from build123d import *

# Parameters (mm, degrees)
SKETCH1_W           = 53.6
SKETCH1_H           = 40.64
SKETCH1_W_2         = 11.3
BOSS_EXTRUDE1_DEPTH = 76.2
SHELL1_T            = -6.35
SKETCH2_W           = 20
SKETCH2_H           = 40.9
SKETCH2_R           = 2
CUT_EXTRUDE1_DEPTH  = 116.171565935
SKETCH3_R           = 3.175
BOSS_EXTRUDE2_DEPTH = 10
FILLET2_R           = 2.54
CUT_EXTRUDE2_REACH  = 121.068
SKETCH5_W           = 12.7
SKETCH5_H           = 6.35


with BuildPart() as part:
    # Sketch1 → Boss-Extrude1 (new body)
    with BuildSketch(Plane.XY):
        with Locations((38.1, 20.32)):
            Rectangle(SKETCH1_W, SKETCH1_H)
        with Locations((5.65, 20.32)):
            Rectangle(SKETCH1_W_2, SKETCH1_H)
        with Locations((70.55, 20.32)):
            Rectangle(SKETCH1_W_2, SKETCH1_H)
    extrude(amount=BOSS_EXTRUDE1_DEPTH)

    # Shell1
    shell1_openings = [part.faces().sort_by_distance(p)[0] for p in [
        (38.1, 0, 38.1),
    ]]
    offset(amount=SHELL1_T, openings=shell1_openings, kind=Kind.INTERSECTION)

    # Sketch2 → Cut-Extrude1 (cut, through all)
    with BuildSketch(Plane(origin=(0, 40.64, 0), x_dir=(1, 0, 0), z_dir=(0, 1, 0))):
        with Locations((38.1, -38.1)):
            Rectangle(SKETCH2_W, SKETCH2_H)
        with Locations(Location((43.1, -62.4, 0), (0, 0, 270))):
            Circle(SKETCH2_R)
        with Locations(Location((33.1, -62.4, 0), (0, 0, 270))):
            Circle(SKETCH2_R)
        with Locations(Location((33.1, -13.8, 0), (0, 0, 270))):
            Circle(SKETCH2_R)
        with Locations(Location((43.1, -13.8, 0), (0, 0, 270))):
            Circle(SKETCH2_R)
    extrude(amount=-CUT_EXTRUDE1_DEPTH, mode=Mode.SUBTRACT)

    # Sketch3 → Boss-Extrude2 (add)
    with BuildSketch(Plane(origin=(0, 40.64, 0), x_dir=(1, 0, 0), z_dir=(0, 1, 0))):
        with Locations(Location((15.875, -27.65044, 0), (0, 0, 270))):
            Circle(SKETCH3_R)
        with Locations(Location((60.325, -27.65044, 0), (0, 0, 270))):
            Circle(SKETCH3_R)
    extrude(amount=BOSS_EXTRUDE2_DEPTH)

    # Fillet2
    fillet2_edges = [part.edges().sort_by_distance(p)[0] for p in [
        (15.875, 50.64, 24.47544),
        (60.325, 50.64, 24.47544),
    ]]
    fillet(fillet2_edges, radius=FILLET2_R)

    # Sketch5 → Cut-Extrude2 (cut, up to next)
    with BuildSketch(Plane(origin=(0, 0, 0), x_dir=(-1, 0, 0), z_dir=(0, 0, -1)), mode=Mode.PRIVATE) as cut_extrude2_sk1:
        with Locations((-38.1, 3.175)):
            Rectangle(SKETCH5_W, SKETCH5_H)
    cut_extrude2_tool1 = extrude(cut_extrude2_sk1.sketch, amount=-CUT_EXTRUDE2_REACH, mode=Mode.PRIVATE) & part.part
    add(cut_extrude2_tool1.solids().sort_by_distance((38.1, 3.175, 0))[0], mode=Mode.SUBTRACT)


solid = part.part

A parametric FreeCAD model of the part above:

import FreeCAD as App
import Part
import Sketcher

V = App.Vector
Q = App.Units.Quantity


def edges_at(feature, points):
    """Names of the edges that pass closest to the given points."""
    edges = feature.Shape.Edges
    near = lambda p: min(range(len(edges)), key=lambda i: edges[i].distToShape(Part.Vertex(*p))[0])
    return sorted({f"Edge{near(p) + 1}" for p in points})


def faces_at(feature, points):
    """Names of the faces that lie closest to the given points."""
    faces = feature.Shape.Faces
    near = lambda p: min(range(len(faces)), key=lambda i: faces[i].distToShape(Part.Vertex(*p))[0])
    return sorted({f"Face{near(p) + 1}" for p in points})

doc = App.newDocument("Part")
body = doc.addObject("PartDesign::Body", "Body")

# Sketch on XY plane
sketch1 = body.newObject("Sketcher::SketchObject", "Sketch")
sketch1.AttachmentSupport = (doc.getObject("XY_Plane"), [""])
sketch1.MapMode = "FlatFace"
sketch1.addGeometry(Part.LineSegment(V(0, 40.64, 0), V(0, 0, 0)), False)
sketch1.addGeometry(Part.LineSegment(V(0, 0, 0), V(76.2, 0, 0)), False)
sketch1.addGeometry(Part.LineSegment(V(76.2, 0, 0), V(76.2, 40.64, 0)), False)
sketch1.addGeometry(Part.LineSegment(V(76.2, 40.64, 0), V(0, 40.64, 0)), False)
sketch1.addConstraint(Sketcher.Constraint("Coincident", 0, 2, 1, 1))
sketch1.addConstraint(Sketcher.Constraint("Coincident", 1, 2, 2, 1))
sketch1.addConstraint(Sketcher.Constraint("Coincident", 2, 2, 3, 1))
sketch1.addConstraint(Sketcher.Constraint("Coincident", 3, 2, 0, 1))
sketch1.addConstraint(Sketcher.Constraint("Vertical", 0))
sketch1.addConstraint(Sketcher.Constraint("Horizontal", 1))
sketch1.addConstraint(Sketcher.Constraint("Vertical", 2))
sketch1.addConstraint(Sketcher.Constraint("Horizontal", 3))
sketch1.addConstraint(Sketcher.Constraint("Coincident", 0, 2, -1, 1))
sketch1.addConstraint(Sketcher.Constraint("DistanceX", 1, 1, 1, 2, Q("3 in")))
sketch1.addConstraint(Sketcher.Constraint("DistanceY", 0, 2, 0, 1, Q("1.6 in")))
pad1 = body.newObject("PartDesign::Pad", "Pad")
pad1.Profile = sketch1
pad1.Length = Q("3 in")
doc.recompute()

thickness = body.newObject("PartDesign::Thickness", "Thickness")
thickness.Base = (pad1, faces_at(pad1, [(38.1, 0, 38.1)]))
thickness.Value = Q("0.25 in")
thickness.Reversed = True
thickness.Join = "Intersection"

# Sketch on XZ plane
sketch2 = body.newObject("Sketcher::SketchObject", "Sketch001")
sketch2.AttachmentSupport = (doc.getObject("XZ_Plane"), [""])
sketch2.MapMode = "FlatFace"
sketch2.AttachmentOffset = App.Placement(V(0, 0, -1.6 * 25.4), App.Rotation())
sketch2.addGeometry(Part.LineSegment(V(28.1, 17.65, 0), V(28.1, 58.55, 0)), False)
sketch2.addGeometry(Part.LineSegment(V(28.1, 58.55, 0), V(48.1, 58.55, 0)), False)
sketch2.addGeometry(Part.LineSegment(V(48.1, 58.55, 0), V(48.1, 17.65, 0)), False)
sketch2.addGeometry(Part.LineSegment(V(48.1, 17.65, 0), V(28.1, 17.65, 0)), False)
sketch2.addGeometry(Part.Circle(V(43.1, 62.4, 0), V(0, 0, 1), 2), False)
sketch2.addGeometry(Part.Circle(V(33.1, 62.4, 0), V(0, 0, 1), 2), False)
sketch2.addGeometry(Part.Circle(V(33.1, 13.8, 0), V(0, 0, 1), 2), False)
sketch2.addGeometry(Part.Circle(V(43.1, 13.8, 0), V(0, 0, 1), 2), False)
sketch2.addConstraint(Sketcher.Constraint("Coincident", 0, 2, 1, 1))
sketch2.addConstraint(Sketcher.Constraint("Coincident", 1, 2, 2, 1))
sketch2.addConstraint(Sketcher.Constraint("Coincident", 2, 2, 3, 1))
sketch2.addConstraint(Sketcher.Constraint("Coincident", 3, 2, 0, 1))
sketch2.addConstraint(Sketcher.Constraint("Vertical", 0))
sketch2.addConstraint(Sketcher.Constraint("Horizontal", 1))
sketch2.addConstraint(Sketcher.Constraint("Vertical", 2))
sketch2.addConstraint(Sketcher.Constraint("Horizontal", 3))
sketch2.addConstraint(Sketcher.Constraint("Equal", 4, 5))
sketch2.addConstraint(Sketcher.Constraint("Equal", 5, 6))
sketch2.addConstraint(Sketcher.Constraint("Equal", 6, 7))
sketch2.addConstraint(Sketcher.Constraint("Horizontal", 4, 3, 5, 3))
sketch2.addConstraint(Sketcher.Constraint("Horizontal", 6, 3, 7, 3))
sketch2.addConstraint(Sketcher.Constraint("Vertical", 5, 3, 6, 3))
sketch2.addConstraint(Sketcher.Constraint("Vertical", 4, 3, 7, 3))
sketch2.addConstraint(Sketcher.Constraint("Diameter", 4, Q("4 mm")))
sketch2.addConstraint(Sketcher.Constraint("DistanceX", 1, 1, 1, 2, Q("20 mm")))
sketch2.addConstraint(Sketcher.Constraint("DistanceY", 0, 1, 0, 2, Q("40.9 mm")))
sketch2.addConstraint(Sketcher.Constraint("DistanceX", -1, 1, 4, 3, Q("43.1 mm")))
sketch2.addConstraint(Sketcher.Constraint("DistanceY", -1, 1, 4, 3, Q("62.4 mm")))
sketch2.addConstraint(Sketcher.Constraint("DistanceX", -1, 1, 5, 3, Q("33.1 mm")))
sketch2.addConstraint(Sketcher.Constraint("DistanceY", -1, 1, 6, 3, Q("13.8 mm")))
sketch2.addConstraint(Sketcher.Constraint("DistanceX", -1, 1, 0, 2, Q("28.1 mm")))
sketch2.addConstraint(Sketcher.Constraint("DistanceY", -1, 1, 0, 2, Q("58.55 mm")))
pocket1 = body.newObject("PartDesign::Pocket", "Pocket")
pocket1.Profile = sketch2
pocket1.Type = "ThroughAll"
pocket1.Reversed = True

# Sketch on XZ plane
sketch3 = body.newObject("Sketcher::SketchObject", "Sketch002")
sketch3.AttachmentSupport = (doc.getObject("XZ_Plane"), [""])
sketch3.MapMode = "FlatFace"
sketch3.AttachmentOffset = App.Placement(V(0, 0, -1.6 * 25.4), App.Rotation())
sketch3.addGeometry(Part.Circle(V(15.875, 27.65044, 0), V(0, 0, 1), 3.175), False)
sketch3.addGeometry(Part.Circle(V(60.325, 27.65044, 0), V(0, 0, 1), 3.175), False)
sketch3.addConstraint(Sketcher.Constraint("Equal", 0, 1))
sketch3.addConstraint(Sketcher.Constraint("Horizontal", 0, 3, 1, 3))
sketch3.addConstraint(Sketcher.Constraint("Diameter", 0, Q("0.25 in")))
sketch3.addConstraint(Sketcher.Constraint("DistanceX", 0, 3, 1, 3, Q("1.75 in")))
sketch3.addConstraint(Sketcher.Constraint("DistanceX", -1, 1, 0, 3, Q("0.625 in")))
sketch3.addConstraint(Sketcher.Constraint("DistanceY", -1, 1, 0, 3, Q("1.0886 in")))
pad2 = body.newObject("PartDesign::Pad", "Pad001")
pad2.Profile = sketch3
pad2.Length = 10
pad2.Reversed = True
doc.recompute()

fillet = body.newObject("PartDesign::Fillet", "Fillet")
fillet.Base = (pad2, edges_at(pad2, [(15.875, 50.64, 24.475), (60.325, 50.64, 24.475)]))
fillet.Radius = Q("0.1 in")

# Sketch on XY plane
sketch4 = body.newObject("Sketcher::SketchObject", "Sketch003")
sketch4.AttachmentSupport = (doc.getObject("XY_Plane"), [""])
sketch4.MapMode = "FlatFace"
sketch4.addGeometry(Part.LineSegment(V(44.45, 6.35, 0), V(44.45, 0, 0)), False)
sketch4.addGeometry(Part.LineSegment(V(44.45, 0, 0), V(31.75, 0, 0)), False)
sketch4.addGeometry(Part.LineSegment(V(31.75, 0, 0), V(31.75, 6.35, 0)), False)
sketch4.addGeometry(Part.LineSegment(V(31.75, 6.35, 0), V(44.45, 6.35, 0)), False)
sketch4.addConstraint(Sketcher.Constraint("Coincident", 0, 2, 1, 1))
sketch4.addConstraint(Sketcher.Constraint("Coincident", 1, 2, 2, 1))
sketch4.addConstraint(Sketcher.Constraint("Coincident", 2, 2, 3, 1))
sketch4.addConstraint(Sketcher.Constraint("Coincident", 3, 2, 0, 1))
sketch4.addConstraint(Sketcher.Constraint("Vertical", 0))
sketch4.addConstraint(Sketcher.Constraint("Horizontal", 1))
sketch4.addConstraint(Sketcher.Constraint("Vertical", 2))
sketch4.addConstraint(Sketcher.Constraint("Horizontal", 3))
sketch4.addConstraint(Sketcher.Constraint("PointOnObject", 0, 2, -1))
sketch4.addConstraint(Sketcher.Constraint("DistanceX", 1, 2, 1, 1, Q("0.5 in")))
sketch4.addConstraint(Sketcher.Constraint("DistanceY", 0, 2, 0, 1, Q("0.25 in")))
sketch4.addConstraint(Sketcher.Constraint("DistanceX", -1, 1, 0, 2, Q("1.75 in")))
pocket2 = body.newObject("PartDesign::Pocket", "Pocket001")
pocket2.Profile = sketch4
pocket2.Type = "UpToFirst"
pocket2.Reversed = True

doc.recompute()
